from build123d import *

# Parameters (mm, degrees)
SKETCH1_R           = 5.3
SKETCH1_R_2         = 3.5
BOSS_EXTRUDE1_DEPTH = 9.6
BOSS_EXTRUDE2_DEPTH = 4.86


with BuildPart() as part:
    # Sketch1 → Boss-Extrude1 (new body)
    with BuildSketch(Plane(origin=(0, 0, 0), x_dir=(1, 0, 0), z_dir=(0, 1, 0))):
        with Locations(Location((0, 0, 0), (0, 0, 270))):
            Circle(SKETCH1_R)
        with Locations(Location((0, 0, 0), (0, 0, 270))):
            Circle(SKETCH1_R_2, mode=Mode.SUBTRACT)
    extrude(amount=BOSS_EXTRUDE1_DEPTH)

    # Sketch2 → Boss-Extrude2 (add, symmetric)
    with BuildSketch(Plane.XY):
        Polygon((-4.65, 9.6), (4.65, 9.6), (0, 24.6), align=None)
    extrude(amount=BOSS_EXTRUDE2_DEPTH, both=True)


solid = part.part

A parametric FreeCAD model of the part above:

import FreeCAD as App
import Part
import Sketcher

V = App.Vector
Q = App.Units.Quantity

doc = App.newDocument("Part")
body = doc.addObject("PartDesign::Body", "Body")

# Sketch on XZ plane
sketch1 = body.newObject("Sketcher::SketchObject", "Sketch")
sketch1.AttachmentSupport = (doc.getObject("XZ_Plane"), [""])
sketch1.MapMode = "FlatFace"
sketch1.addGeometry(Part.Circle(V(0, 0, 0), V(0, 0, 1), 5.3), False)
sketch1.addGeometry(Part.Circle(V(0, 0, 0), V(0, 0, 1), 3.5), False)
sketch1.addConstraint(Sketcher.Constraint("Coincident", 0, 3, -1, 1))
sketch1.addConstraint(Sketcher.Constraint("Coincident", 1, 3, -1, 1))
sketch1.addConstraint(Sketcher.Constraint("Diameter", 1, Q("7 mm")))
sketch1.addConstraint(Sketcher.Constraint("Diameter", 0, Q("10.6 mm")))
pad1 = body.newObject("PartDesign::Pad", "Pad")
pad1.Profile = sketch1
pad1.Length = 9.6
pad1.Reversed = True

# Sketch on XY plane
sketch2 = body.newObject("Sketcher::SketchObject", "Sketch001")
sketch2.AttachmentSupport = (doc.getObject("XY_Plane"), [""])
sketch2.MapMode = "FlatFace"
sketch2.addGeometry(Part.LineSegment(V(-5, 10, 0), V(5, 10, 0)), False)
sketch2.addGeometry(Part.LineSegment(V(5, 10, 0), V(0, 25, 0)), False)
sketch2.addGeometry(Part.LineSegment(V(0, 25, 0), V(-5, 10, 0)), False)
sketch2.addConstraint(Sketcher.Constraint("Coincident", 0, 2, 1, 1))
sketch2.addConstraint(Sketcher.Constraint("Coincident", 1, 2, 2, 1))
sketch2.addConstraint(Sketcher.Constraint("Coincident", 2, 2, 0, 1))
sketch2.addConstraint(Sketcher.Constraint("Horizontal", 0))
sketch2.addConstraint(Sketcher.Constraint("PointOnObject", 1, 2, -2))
sketch2.addConstraint(Sketcher.Constraint("Equal", 1, 2))
sketch2.addConstraint(Sketcher.Constraint("DistanceX", 0, 1, 0, 2, Q("9.3 mm")))
sketch2.addConstraint(Sketcher.Constraint("DistanceY", 0, 2, 1, 2, Q("15 mm")))
sketch2.addConstraint(Sketcher.Constraint("DistanceY", -1, 1, 0, 2, Q("9.6 mm")))
pad2 = body.newObject("PartDesign::Pad", "Pad001")
pad2.Profile = sketch2
pad2.Length = 9.72
pad2.Midplane = True

doc.recompute()
